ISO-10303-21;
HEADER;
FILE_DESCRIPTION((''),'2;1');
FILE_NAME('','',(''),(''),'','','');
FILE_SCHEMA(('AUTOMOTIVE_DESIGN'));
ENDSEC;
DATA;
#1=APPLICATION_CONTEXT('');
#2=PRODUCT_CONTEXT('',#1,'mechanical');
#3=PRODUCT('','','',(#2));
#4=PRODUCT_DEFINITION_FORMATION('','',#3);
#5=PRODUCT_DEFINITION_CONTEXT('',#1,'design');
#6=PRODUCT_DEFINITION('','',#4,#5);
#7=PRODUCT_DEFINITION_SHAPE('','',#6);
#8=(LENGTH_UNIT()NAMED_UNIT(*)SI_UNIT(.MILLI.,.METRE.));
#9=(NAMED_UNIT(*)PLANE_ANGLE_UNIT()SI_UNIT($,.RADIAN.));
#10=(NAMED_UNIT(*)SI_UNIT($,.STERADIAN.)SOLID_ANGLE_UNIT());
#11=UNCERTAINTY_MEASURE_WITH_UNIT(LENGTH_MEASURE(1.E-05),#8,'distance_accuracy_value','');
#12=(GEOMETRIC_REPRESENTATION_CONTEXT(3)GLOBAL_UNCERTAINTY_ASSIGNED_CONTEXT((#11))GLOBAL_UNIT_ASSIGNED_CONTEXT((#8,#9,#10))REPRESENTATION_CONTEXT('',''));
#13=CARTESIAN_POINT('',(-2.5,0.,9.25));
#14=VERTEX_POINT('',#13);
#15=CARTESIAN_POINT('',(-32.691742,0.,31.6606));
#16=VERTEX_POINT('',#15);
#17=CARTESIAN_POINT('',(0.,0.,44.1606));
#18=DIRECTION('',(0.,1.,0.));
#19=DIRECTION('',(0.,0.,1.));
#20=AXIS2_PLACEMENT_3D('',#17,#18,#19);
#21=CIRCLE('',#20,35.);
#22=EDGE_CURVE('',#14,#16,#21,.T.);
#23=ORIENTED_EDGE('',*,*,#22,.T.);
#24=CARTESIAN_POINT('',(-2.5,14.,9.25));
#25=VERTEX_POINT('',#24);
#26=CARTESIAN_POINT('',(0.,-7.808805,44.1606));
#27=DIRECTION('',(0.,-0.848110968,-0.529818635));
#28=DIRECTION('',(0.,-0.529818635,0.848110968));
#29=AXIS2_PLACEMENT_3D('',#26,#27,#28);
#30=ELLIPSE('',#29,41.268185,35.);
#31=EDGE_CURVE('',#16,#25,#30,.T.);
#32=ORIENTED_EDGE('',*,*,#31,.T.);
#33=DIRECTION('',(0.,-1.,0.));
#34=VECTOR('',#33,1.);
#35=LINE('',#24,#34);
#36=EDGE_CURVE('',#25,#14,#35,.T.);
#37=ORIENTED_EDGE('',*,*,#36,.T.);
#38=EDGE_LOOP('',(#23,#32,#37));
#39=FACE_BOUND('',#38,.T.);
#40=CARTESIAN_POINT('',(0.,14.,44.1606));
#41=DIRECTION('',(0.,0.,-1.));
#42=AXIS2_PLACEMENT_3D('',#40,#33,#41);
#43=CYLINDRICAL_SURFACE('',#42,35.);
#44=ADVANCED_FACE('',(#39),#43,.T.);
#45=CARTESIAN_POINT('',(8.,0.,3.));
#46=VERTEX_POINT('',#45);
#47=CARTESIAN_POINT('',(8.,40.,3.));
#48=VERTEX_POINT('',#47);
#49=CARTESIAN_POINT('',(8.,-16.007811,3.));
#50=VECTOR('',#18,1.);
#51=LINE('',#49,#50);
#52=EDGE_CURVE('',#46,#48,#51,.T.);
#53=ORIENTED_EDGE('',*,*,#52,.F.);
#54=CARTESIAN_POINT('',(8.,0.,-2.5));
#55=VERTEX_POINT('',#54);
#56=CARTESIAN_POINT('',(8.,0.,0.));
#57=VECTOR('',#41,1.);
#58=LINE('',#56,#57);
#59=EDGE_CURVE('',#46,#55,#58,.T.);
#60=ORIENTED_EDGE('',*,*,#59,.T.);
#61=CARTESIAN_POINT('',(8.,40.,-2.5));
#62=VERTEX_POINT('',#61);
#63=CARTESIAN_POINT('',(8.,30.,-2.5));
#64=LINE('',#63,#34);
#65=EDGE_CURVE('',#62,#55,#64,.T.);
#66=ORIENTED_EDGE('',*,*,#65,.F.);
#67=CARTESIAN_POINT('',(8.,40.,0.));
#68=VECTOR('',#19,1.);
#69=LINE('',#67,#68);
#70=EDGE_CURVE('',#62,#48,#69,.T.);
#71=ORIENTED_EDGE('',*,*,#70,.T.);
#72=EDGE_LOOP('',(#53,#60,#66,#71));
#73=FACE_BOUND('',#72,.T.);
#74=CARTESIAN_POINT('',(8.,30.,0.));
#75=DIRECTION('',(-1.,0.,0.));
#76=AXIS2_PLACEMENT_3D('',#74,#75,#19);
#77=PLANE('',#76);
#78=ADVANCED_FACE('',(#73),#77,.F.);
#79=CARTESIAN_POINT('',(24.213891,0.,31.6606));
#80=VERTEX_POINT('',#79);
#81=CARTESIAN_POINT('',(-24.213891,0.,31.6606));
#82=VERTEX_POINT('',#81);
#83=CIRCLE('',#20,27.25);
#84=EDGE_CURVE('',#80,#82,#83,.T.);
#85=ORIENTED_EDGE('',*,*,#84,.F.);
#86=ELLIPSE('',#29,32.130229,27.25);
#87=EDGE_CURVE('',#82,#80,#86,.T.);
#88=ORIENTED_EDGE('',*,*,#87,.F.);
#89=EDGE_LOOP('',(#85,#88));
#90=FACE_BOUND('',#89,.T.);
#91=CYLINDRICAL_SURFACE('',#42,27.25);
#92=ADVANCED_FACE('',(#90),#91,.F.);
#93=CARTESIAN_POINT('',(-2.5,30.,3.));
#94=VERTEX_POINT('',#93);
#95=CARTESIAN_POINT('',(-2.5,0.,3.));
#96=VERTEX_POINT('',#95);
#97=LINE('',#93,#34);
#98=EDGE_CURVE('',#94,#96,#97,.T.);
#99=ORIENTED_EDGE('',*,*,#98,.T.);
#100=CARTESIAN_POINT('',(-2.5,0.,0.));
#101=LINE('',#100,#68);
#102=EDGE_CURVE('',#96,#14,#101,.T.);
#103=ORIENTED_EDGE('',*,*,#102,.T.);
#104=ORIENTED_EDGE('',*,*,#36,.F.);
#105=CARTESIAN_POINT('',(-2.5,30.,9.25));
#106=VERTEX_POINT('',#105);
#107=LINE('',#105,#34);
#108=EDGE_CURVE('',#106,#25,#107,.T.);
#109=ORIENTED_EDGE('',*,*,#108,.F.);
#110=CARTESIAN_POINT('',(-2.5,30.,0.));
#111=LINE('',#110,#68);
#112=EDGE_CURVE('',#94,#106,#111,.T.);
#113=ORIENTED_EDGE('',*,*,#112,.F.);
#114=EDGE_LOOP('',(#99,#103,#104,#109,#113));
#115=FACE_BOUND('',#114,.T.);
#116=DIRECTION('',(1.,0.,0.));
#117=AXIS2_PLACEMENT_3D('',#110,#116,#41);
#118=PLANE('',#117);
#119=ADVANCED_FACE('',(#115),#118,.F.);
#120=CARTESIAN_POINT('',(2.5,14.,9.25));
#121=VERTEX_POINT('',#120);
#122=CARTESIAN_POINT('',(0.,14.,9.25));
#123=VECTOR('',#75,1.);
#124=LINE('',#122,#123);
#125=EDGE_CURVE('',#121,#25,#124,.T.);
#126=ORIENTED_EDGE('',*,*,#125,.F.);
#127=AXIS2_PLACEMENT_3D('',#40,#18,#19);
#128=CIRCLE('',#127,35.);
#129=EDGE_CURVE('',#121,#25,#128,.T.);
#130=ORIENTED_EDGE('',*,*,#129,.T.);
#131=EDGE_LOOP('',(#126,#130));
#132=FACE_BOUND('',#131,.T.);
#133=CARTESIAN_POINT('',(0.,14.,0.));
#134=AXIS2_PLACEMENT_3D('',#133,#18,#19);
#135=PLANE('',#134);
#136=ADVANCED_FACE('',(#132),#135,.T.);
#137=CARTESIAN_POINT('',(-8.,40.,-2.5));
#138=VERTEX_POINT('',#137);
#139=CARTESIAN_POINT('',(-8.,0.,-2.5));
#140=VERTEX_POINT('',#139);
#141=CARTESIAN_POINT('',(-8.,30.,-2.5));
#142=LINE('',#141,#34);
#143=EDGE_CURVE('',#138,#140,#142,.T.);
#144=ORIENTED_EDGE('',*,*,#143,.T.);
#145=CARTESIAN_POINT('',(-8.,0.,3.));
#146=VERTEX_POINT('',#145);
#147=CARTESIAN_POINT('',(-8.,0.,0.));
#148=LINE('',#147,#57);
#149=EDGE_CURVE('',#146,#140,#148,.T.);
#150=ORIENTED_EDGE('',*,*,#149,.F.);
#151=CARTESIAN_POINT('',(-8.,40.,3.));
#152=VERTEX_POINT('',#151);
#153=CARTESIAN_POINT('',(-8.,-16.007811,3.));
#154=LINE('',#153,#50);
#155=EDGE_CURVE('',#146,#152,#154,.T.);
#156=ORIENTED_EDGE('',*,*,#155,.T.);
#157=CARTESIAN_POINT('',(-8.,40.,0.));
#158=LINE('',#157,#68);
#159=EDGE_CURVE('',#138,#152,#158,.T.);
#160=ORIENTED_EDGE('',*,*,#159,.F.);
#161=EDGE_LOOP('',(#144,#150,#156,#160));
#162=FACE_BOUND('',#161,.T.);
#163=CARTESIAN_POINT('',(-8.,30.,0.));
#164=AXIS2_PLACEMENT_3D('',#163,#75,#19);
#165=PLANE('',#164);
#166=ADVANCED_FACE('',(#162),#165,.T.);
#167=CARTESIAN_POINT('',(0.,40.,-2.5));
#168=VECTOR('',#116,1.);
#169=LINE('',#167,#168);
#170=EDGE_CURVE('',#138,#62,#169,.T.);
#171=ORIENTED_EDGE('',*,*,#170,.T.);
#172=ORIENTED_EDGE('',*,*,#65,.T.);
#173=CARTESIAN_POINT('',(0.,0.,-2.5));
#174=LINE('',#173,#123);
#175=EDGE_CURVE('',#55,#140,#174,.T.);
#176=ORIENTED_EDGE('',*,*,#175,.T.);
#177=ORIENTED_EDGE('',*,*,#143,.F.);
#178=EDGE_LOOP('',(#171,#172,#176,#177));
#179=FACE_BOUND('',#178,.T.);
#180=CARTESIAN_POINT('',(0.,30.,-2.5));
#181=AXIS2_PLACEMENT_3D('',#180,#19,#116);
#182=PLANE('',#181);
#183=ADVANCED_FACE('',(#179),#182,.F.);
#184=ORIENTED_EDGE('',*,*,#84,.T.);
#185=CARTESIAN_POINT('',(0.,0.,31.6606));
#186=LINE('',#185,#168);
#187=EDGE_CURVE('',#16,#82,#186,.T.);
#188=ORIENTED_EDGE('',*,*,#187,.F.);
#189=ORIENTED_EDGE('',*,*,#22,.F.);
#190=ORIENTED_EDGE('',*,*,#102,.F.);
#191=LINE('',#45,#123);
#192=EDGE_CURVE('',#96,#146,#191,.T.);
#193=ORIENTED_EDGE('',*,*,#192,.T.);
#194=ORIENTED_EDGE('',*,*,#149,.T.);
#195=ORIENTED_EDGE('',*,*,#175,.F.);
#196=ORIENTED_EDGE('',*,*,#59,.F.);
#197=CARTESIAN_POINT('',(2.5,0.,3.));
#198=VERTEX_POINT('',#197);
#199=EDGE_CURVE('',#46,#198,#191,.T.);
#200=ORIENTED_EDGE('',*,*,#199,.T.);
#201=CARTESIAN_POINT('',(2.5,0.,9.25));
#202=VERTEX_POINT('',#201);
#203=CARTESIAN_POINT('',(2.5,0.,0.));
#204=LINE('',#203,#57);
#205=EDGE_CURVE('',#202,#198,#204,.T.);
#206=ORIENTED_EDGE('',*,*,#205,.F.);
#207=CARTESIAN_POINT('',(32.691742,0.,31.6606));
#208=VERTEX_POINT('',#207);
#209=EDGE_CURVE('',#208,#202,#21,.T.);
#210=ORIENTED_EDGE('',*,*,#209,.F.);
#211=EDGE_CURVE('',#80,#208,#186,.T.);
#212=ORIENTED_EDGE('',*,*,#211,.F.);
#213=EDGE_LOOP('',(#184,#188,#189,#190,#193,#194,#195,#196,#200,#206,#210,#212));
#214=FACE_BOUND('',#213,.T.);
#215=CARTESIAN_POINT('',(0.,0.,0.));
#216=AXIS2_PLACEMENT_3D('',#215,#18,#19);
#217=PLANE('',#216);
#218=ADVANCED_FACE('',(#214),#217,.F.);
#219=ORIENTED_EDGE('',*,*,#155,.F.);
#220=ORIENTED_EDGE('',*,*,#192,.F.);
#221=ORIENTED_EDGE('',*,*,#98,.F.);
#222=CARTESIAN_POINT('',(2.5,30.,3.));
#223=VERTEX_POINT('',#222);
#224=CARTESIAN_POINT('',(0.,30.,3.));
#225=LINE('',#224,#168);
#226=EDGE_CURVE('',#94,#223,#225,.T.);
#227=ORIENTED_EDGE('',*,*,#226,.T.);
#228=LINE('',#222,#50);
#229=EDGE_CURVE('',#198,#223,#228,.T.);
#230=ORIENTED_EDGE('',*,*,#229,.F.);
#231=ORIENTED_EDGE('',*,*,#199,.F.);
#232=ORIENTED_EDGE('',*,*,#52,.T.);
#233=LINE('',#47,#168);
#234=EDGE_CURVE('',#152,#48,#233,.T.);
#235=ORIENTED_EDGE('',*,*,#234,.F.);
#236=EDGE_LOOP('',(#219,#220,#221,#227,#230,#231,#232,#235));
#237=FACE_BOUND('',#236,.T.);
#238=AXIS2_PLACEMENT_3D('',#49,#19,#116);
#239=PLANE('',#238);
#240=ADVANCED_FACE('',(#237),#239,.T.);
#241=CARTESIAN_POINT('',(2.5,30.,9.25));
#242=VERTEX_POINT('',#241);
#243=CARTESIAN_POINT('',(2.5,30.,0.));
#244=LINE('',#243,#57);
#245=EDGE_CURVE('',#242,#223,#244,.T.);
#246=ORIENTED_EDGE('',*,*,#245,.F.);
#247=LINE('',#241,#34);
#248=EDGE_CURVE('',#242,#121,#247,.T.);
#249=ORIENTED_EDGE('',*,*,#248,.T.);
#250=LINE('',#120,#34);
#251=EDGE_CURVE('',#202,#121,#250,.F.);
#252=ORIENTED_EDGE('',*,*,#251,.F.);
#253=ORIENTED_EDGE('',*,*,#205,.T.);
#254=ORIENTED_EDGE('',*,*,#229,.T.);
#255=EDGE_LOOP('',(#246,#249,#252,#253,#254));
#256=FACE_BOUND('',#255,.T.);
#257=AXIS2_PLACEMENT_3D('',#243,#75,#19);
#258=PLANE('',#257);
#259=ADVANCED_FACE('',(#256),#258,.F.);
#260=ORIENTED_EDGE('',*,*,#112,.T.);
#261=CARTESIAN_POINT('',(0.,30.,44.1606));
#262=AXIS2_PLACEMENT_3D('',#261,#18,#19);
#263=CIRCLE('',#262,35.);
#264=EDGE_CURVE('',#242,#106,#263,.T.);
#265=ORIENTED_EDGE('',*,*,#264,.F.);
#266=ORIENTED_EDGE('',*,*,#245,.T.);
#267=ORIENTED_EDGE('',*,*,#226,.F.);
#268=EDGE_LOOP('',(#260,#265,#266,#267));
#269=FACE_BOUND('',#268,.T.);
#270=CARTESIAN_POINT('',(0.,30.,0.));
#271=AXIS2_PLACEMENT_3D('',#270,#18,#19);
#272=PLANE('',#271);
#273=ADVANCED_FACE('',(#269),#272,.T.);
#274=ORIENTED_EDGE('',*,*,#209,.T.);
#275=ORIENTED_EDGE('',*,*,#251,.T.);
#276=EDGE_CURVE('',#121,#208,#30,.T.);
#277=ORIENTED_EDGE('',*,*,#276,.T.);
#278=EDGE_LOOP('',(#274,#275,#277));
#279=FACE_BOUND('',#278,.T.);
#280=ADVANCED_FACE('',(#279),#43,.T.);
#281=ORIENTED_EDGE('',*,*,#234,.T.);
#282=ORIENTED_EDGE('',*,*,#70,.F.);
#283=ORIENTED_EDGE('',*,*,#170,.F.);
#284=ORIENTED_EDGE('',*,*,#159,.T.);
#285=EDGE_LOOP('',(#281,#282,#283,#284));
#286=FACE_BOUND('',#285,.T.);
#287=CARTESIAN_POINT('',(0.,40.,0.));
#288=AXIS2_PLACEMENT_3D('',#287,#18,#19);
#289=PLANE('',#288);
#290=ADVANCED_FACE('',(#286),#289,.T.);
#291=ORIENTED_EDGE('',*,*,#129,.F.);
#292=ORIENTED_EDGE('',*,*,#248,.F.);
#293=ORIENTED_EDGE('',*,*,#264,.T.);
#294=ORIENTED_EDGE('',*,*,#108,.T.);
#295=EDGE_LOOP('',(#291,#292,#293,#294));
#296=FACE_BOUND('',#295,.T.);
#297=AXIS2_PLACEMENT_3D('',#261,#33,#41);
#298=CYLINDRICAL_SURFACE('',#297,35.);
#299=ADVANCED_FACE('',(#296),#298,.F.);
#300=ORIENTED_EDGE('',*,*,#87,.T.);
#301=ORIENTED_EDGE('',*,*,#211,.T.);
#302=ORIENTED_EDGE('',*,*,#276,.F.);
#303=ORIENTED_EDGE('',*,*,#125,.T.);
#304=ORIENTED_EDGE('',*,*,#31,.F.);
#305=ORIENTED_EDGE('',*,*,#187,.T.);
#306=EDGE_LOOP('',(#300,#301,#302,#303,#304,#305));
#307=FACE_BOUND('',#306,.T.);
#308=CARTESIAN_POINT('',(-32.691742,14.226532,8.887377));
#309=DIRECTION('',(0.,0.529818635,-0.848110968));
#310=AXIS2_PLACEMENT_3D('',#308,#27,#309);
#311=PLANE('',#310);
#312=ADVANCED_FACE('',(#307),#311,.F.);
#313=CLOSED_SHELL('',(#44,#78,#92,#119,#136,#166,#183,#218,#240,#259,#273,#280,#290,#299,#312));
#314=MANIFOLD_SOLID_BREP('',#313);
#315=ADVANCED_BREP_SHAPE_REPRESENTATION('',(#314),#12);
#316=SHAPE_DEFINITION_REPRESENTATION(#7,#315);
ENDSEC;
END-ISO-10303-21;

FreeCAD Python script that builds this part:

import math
import FreeCAD as App
import Part
import Sketcher
Q = App.Units.Quantity


def add_polygon(sketch, points):
    """Adds a closed chain of lines whose ends are joined by coincident constraints."""
    first, n = sketch.GeometryCount, len(points)
    for a, b in zip(points, points[1:] + points[:1]):
        sketch.addGeometry(Part.LineSegment(App.Vector(*a, 0), App.Vector(*b, 0)), False)
    for i in range(n):
        sketch.addConstraint(Sketcher.Constraint("Coincident", first + i, 2, first + (i + 1) % n, 1))

doc = App.newDocument("Part")
body = doc.addObject("PartDesign::Body", "Body")

sketch1 = body.newObject("Sketcher::SketchObject", "Sketch")
sketch1.AttachmentSupport = (doc.getObject("XZ_Plane"), [""])
sketch1.MapMode = "FlatFace"
sketch1.addGeometry([
    Part.LineSegment(App.Vector(-8, -2, 0), App.Vector(-8, 2, 0)),
    Part.LineSegment(App.Vector(-8, 2, 0), App.Vector(-2, 2, 0)),
    Part.LineSegment(App.Vector(-2, 2, 0), App.Vector(-2, 9, 0)),
    Part.ArcOfCircle(Part.Circle(App.Vector(0, 44, 0), App.Vector(0, 0, 1), 35), math.radians(-94.1), math.radians(-85.9)),
    Part.LineSegment(App.Vector(2, 9, 0), App.Vector(2, 2, 0)),
    Part.LineSegment(App.Vector(2, 2, 0), App.Vector(8, 2, 0)),
    Part.LineSegment(App.Vector(8, 2, 0), App.Vector(8, -2, 0)),
    Part.LineSegment(App.Vector(8, -2, 0), App.Vector(-8, -2, 0)),
], False)
sketch1.addConstraint([
    Sketcher.Constraint("Coincident", 0, 2, 1, 1),
    Sketcher.Constraint("Coincident", 1, 2, 2, 1),
    Sketcher.Constraint("Coincident", 2, 2, 3, 1),
    Sketcher.Constraint("Coincident", 3, 2, 4, 1),
    Sketcher.Constraint("Coincident", 4, 2, 5, 1),
    Sketcher.Constraint("Coincident", 5, 2, 6, 1),
    Sketcher.Constraint("Coincident", 6, 2, 7, 1),
    Sketcher.Constraint("Coincident", 7, 2, 0, 1),
    Sketcher.Constraint("Vertical", 0),
    Sketcher.Constraint("Horizontal", 1),
    Sketcher.Constraint("Vertical", 2),
    Sketcher.Constraint("Vertical", 4),
    Sketcher.Constraint("Horizontal", 5),
    Sketcher.Constraint("Vertical", 6),
    Sketcher.Constraint("Horizontal", 7),
    Sketcher.Constraint("Symmetric", 0, 2, 6, 2, -1, 1),
    Sketcher.Constraint("Symmetric", 2, 2, 3, 2, -2),
    Sketcher.Constraint("Horizontal", 1, 2, 4, 2),
    Sketcher.Constraint("Radius", 3, Q("35 mm")),
    Sketcher.Constraint("DistanceX", 7, 2, 7, 1, Q("16 mm")),
    Sketcher.Constraint("DistanceY", 0, 1, 0, 2, Q("5 mm")),
    Sketcher.Constraint("DistanceX", 1, 1, 1, 2, Q("5.5 mm")),
    Sketcher.Constraint("DistanceY", 2, 1, 2, 2, Q("6.75 mm")),
])
pad1 = body.newObject("PartDesign::Pad", "Pad")
pad1.Profile = sketch1
pad1.Length = 30
pad1.Reversed = True

sketch2 = body.newObject("Sketcher::SketchObject", "Sketch001")
sketch2.AttachmentSupport = (doc.getObject("XZ_Plane"), [""])
sketch2.MapMode = "FlatFace"
sketch2.addGeometry([
    Part.ArcOfCircle(Part.Circle(App.Vector(0, 44, 0), App.Vector(0, 0, 1), 35), math.radians(-159), math.radians(-21)),
    Part.LineSegment(App.Vector(-33, 32, 0), App.Vector(-24, 32, 0)),
    Part.ArcOfCircle(Part.Circle(App.Vector(0, 44, 0), App.Vector(0, 0, 1), 27), math.radians(-153), math.radians(-27)),
    Part.LineSegment(App.Vector(24, 32, 0), App.Vector(33, 32, 0)),
], False)
sketch2.addConstraint([
    Sketcher.Constraint("Coincident", 0, 1, 1, 1),
    Sketcher.Constraint("Coincident", 1, 2, 2, 1),
    Sketcher.Constraint("Coincident", 2, 2, 3, 1),
    Sketcher.Constraint("Coincident", 3, 2, 0, 2),
    Sketcher.Constraint("Horizontal", 1),
    Sketcher.Constraint("Horizontal", 3),
    Sketcher.Constraint("Coincident", 2, 3, 0, 3),
    Sketcher.Constraint("Symmetric", 1, 2, 2, 2, -2),
    Sketcher.Constraint("Radius", 0, Q("35 mm")),
    Sketcher.Constraint("Radius", 2, Q("27.25 mm")),
    Sketcher.Constraint("DistanceY", 0, 1, 0, 3, Q("12.5 mm")),
    Sketcher.Constraint("DistanceY", -1, 1, 0, 3, Q("44.1606 mm")),
])
pad2 = body.newObject("PartDesign::Pad", "Pad001")
pad2.Profile = sketch2
pad2.Length = 14
pad2.Reversed = True

sketch3 = body.newObject("Sketcher::SketchObject", "Sketch002")
sketch3.AttachmentSupport = (doc.getObject("YZ_Plane"), [""])
sketch3.MapMode = "FlatFace"
add_polygon(sketch3, [(14, 9), (14, 32), (0, 32)])
sketch3.addConstraint([
    Sketcher.Constraint("Vertical", 0),
    Sketcher.Constraint("Horizontal", 1),
    Sketcher.Constraint("PointOnObject", 1, 2, -2),
    Sketcher.Constraint("DistanceX", 1, 2, 1, 1, Q("14 mm")),
    Sketcher.Constraint("DistanceY", -1, 1, 2, 2, Q("9.25 mm")),
    Sketcher.Constraint("DistanceY", 0, 1, 0, 2, Q("22.4106 mm")),
])
pocket1 = body.newObject("PartDesign::Pocket", "Pocket")
pocket1.Profile = sketch3
pocket1.Type = "ThroughAll"
pocket1.Midplane = True

sketch4 = body.newObject("Sketcher::SketchObject", "Sketch003")
sketch4.AttachmentSupport = (doc.getObject("XZ_Plane"), [""])
sketch4.MapMode = "FlatFace"
sketch4.AttachmentOffset = App.Placement(App.Vector(0, 0, -30), App.Rotation())
add_polygon(sketch4, [(-8, -2), (-8, 2), (8, 2), (8, -2)])
sketch4.addConstraint([
    Sketcher.Constraint("Vertical", 0),
    Sketcher.Constraint("Horizontal", 1),
    Sketcher.Constraint("Vertical", 2),
    Sketcher.Constraint("Horizontal", 3),
    Sketcher.Constraint("Symmetric", 0, 2, 2, 2, -1, 1),
    Sketcher.Constraint("DistanceX", 1, 1, 1, 2, Q("16 mm")),
    Sketcher.Constraint("DistanceY", 0, 1, 0, 2, Q("5 mm")),
])
pad3 = body.newObject("PartDesign::Pad", "Pad002")
pad3.Profile = sketch4
pad3.Length = 10
pad3.Reversed = True

sketch5 = body.newObject("Sketcher::SketchObject", "Sketch004")
sketch5.AttachmentSupport = (doc.getObject("XZ_Plane"), [""])
sketch5.MapMode = "FlatFace"
sketch5.AttachmentOffset = App.Placement(App.Vector(0, 0, -40), App.Rotation())
add_polygon(sketch5, [(-8, 2.5), (-8, 3), (8, 3), (8, 2.5)])
sketch5.addConstraint([
    Sketcher.Constraint("Vertical", 0),
    Sketcher.Constraint("Horizontal", 1),
    Sketcher.Constraint("Vertical", 2),
    Sketcher.Constraint("Horizontal", 3),
    Sketcher.Constraint("DistanceX", 1, 1, 1, 2, Q("16 mm")),
    Sketcher.Constraint("DistanceY", 0, 1, 0, 2, Q("0.5 mm")),
    Sketcher.Constraint("DistanceX", 0, 2, -1, 1, Q("8 mm")),
    Sketcher.Constraint("DistanceY", -1, 1, 0, 2, Q("3 mm")),
])
pad4 = body.newObject("PartDesign::Pad", "Pad003")
pad4.Profile = sketch5
pad4.Length = 40

doc.recompute()
